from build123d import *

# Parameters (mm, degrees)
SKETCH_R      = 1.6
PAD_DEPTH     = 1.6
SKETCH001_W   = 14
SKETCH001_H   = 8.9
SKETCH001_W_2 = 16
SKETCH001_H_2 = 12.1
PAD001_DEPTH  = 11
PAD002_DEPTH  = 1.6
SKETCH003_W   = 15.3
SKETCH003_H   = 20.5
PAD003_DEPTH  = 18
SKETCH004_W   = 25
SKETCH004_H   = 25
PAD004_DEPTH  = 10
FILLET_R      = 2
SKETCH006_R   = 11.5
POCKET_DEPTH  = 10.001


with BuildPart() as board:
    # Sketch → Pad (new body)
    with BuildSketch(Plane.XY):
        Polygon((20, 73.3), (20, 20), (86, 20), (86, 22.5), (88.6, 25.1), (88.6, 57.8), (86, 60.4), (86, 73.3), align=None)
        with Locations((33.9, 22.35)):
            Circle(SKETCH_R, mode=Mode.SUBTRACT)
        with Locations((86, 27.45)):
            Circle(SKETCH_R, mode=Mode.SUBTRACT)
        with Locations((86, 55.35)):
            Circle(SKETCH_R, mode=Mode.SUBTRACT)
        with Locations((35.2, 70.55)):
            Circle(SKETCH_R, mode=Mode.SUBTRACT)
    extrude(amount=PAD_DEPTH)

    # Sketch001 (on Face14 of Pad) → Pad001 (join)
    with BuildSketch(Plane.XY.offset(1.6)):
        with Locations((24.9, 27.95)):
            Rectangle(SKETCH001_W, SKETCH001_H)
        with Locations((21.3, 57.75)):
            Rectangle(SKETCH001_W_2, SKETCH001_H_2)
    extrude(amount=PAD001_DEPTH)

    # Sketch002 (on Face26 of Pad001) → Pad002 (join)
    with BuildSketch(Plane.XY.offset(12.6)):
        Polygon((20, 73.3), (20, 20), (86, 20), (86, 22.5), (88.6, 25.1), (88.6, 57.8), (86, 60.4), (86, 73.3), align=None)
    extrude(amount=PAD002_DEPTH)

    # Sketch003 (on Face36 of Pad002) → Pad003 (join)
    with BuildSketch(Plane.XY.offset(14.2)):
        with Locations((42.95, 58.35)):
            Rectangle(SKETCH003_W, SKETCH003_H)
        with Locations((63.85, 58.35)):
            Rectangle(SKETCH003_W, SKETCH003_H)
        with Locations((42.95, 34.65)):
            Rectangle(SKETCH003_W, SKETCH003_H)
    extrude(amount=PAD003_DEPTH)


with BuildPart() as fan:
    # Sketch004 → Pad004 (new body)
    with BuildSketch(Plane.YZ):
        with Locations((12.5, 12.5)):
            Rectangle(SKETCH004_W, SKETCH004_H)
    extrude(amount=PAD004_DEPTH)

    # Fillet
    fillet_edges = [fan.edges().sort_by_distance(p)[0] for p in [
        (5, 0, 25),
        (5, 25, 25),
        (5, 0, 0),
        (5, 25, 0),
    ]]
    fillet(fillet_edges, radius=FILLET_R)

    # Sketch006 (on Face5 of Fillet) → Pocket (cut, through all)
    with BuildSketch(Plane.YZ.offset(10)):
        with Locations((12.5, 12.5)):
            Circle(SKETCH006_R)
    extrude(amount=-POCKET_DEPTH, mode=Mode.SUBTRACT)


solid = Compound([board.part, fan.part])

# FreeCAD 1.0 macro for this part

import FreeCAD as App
import Part
import Sketcher

V = App.Vector
Q = App.Units.Quantity


def edges_at(feature, points):
    """Names of the edges that pass closest to the given points."""
    edges = feature.Shape.Edges
    near = lambda p: min(range(len(edges)), key=lambda i: edges[i].distToShape(Part.Vertex(*p))[0])
    return sorted({f"Edge{near(p) + 1}" for p in points})

doc = App.newDocument("Part")
params = doc.addObject("Spreadsheet::Sheet", "Params")
for row, (alias, value) in enumerate([
    ("sketch1_diameter", "3.2 mm"),
    ("sketch1_width", "66 mm"),
    ("sketch1_height", "53.3 mm"),
    ("sketch1_height2", "2.5 mm"),
    ("sketch1_height3", "32.7 mm"),
    ("pad1_length", "1.6 mm"),
    ("sketch2_width", "14 mm"),
    ("sketch2_width2", "16 mm"),
    ("sketch2_height", "8.9 mm"),
    ("sketch2_height2", "12.1 mm"),
    ("pad2_length", "11 mm"),
    ("sketch3_width", "66 mm"),
    ("sketch3_height", "53.3 mm"),
    ("sketch3_height2", "2.5 mm"),
    ("sketch3_height3", "32.7 mm"),
    ("sketch3_height4", "12.9 mm"),
    ("pad3_length", "1.6 mm"),
    ("sketch4_width", "15.3 mm"),
    ("sketch4_height", "20.5 mm"),
    ("pad4_length", "18 mm"),
    ("sketch5_width", "25 mm"),
    ("pad5_length", "10 mm"),
    ("fillet_radius", "2 mm"),
    ("sketch6_diameter", "23 mm"),
], start=1):
    params.set(f"A{row}", alias)
    params.set(f"B{row}", "=" + value)
    params.setAlias(f"B{row}", alias)

body = doc.addObject("PartDesign::Body", "Body")

# Sketch on XY plane
sketch1 = body.newObject("Sketcher::SketchObject", "Sketch")
sketch1.AttachmentSupport = (doc.getObject("XY_Plane"), [""])
sketch1.MapMode = "FlatFace"
sketch1.addGeometry([
    Part.LineSegment(V(20, 73.3, 0), V(20, 20, 0)),  # 0
    Part.LineSegment(V(20, 20, 0), V(86, 20, 0)),  # 1
    Part.LineSegment(V(86, 20, 0), V(86, 22.5, 0)),  # 2
    Part.LineSegment(V(86, 22.5, 0), V(88.6, 25.1, 0)),  # 3
    Part.LineSegment(V(88.6, 25.1, 0), V(88.6, 57.8, 0)),  # 4
    Part.LineSegment(V(88.6, 57.8, 0), V(86, 60.4, 0)),  # 5
    Part.LineSegment(V(86, 60.4, 0), V(86, 73.3, 0)),  # 6
    Part.LineSegment(V(86, 73.3, 0), V(20, 73.3, 0)),  # 7
    Part.Circle(V(33.9, 22.4, 0), V(0, 0, 1), 1.6),  # 8
    Part.Circle(V(86, 27.4, 0), V(0, 0, 1), 1.6),  # 9
    Part.Circle(V(35.2, 70.5, 0), V(0, 0, 1), 1.6),  # 10
    Part.Circle(V(86, 55.4, 0), V(0, 0, 1), 1.6),  # 11
], False)
sketch1.addConstraint([
    Sketcher.Constraint("Coincident", 0, 2, 1, 1),
    Sketcher.Constraint("Coincident", 1, 2, 2, 1),
    Sketcher.Constraint("Coincident", 2, 2, 3, 1),
    Sketcher.Constraint("Coincident", 3, 2, 4, 1),
    Sketcher.Constraint("Coincident", 4, 2, 5, 1),
    Sketcher.Constraint("Coincident", 5, 2, 6, 1),
    Sketcher.Constraint("Coincident", 6, 2, 7, 1),
    Sketcher.Constraint("Coincident", 7, 2, 0, 1),
    Sketcher.Constraint("Vertical", 0),
    Sketcher.Constraint("Horizontal", 1),
    Sketcher.Constraint("Vertical", 2),
    Sketcher.Constraint("Vertical", 4),
    Sketcher.Constraint("Vertical", 6),
    Sketcher.Constraint("Horizontal", 7),
    Sketcher.Constraint("Equal", 8, 9),
    Sketcher.Constraint("Equal", 9, 10),
    Sketcher.Constraint("Equal", 10, 11),
    Sketcher.Constraint("Perpendicular", 3, 5),
    Sketcher.Constraint("Vertical", 9, 3, 11, 3),
    Sketcher.Constraint("Vertical", 11, 3, 1, 2),
    Sketcher.Constraint("Vertical", 2, 2, 5, 2),
    Sketcher.Constraint("Equal", 3, 5),
    Sketcher.Constraint("Diameter", 8, Q("3.2 mm")),
    Sketcher.Constraint("DistanceX", 1, 1, 1, 2, Q("66 mm")),
    Sketcher.Constraint("DistanceY", 0, 2, 0, 1, Q("53.3 mm")),
    Sketcher.Constraint("DistanceY", 2, 1, 2, 2, Q("2.5 mm")),
    Sketcher.Constraint("DistanceY", 4, 1, 4, 2, Q("32.7 mm")),
    Sketcher.Constraint("DistanceY", 6, 1, 6, 2, Q("12.9 mm")),
    Sketcher.Constraint("DistanceX", -1, 1, 9, 3, Q("86 mm")),
    Sketcher.Constraint("DistanceY", -1, 1, 0, 2, Q("20 mm")),
    Sketcher.Constraint("DistanceY", 8, 3, 11, 3, Q("33 mm")),
    Sketcher.Constraint("DistanceX", -1, 1, 8, 3, Q("33.9 mm")),
    Sketcher.Constraint("DistanceX", -1, 1, 10, 3, Q("35.2 mm")),
    Sketcher.Constraint("DistanceY", 8, 3, 9, 3, Q("5.1 mm")),
    Sketcher.Constraint("DistanceY", 8, 3, 10, 3, Q("48.2 mm")),
    Sketcher.Constraint("DistanceY", -1, 1, 8, 3, Q("22.35 mm")),
])
sketch1.setExpression("Constraints[22]", "Params.sketch1_diameter")
sketch1.setExpression("Constraints[23]", "Params.sketch1_width")
sketch1.setExpression("Constraints[24]", "Params.sketch1_height")
sketch1.setExpression("Constraints[25]", "Params.sketch1_height2")
sketch1.setExpression("Constraints[26]", "Params.sketch1_height3")
pad1 = body.newObject("PartDesign::Pad", "Pad")
pad1.Profile = sketch1
pad1.setExpression("Length", "Params.pad1_length")

# Sketch on XY plane
sketch2 = body.newObject("Sketcher::SketchObject", "Sketch001")
sketch2.AttachmentSupport = (doc.getObject("XY_Plane"), [""])
sketch2.MapMode = "FlatFace"
sketch2.AttachmentOffset = App.Placement(V(0, 0, 1.6), App.Rotation())
sketch2.addGeometry([
    Part.LineSegment(V(18, 32, 0), V(18, 24, 0)),  # 0
    Part.LineSegment(V(18, 24, 0), V(32, 24, 0)),  # 1
    Part.LineSegment(V(32, 24, 0), V(32, 32, 0)),  # 2
    Part.LineSegment(V(32, 32, 0), V(18, 32, 0)),  # 3
    Part.LineSegment(V(13, 64, 0), V(13, 52, 0)),  # 4
    Part.LineSegment(V(13, 52, 0), V(29, 52, 0)),  # 5
    Part.LineSegment(V(29, 52, 0), V(29, 64, 0)),  # 6
    Part.LineSegment(V(29, 64, 0), V(13, 64, 0)),  # 7
], False)
sketch2.addConstraint([
    Sketcher.Constraint("Coincident", 0, 2, 1, 1),
    Sketcher.Constraint("Coincident", 1, 2, 2, 1),
    Sketcher.Constraint("Coincident", 2, 2, 3, 1),
    Sketcher.Constraint("Coincident", 3, 2, 0, 1),
    Sketcher.Constraint("Coincident", 4, 2, 5, 1),
    Sketcher.Constraint("Coincident", 5, 2, 6, 1),
    Sketcher.Constraint("Coincident", 6, 2, 7, 1),
    Sketcher.Constraint("Coincident", 7, 2, 4, 1),
    Sketcher.Constraint("Vertical", 0),
    Sketcher.Constraint("Horizontal", 1),
    Sketcher.Constraint("Vertical", 2),
    Sketcher.Constraint("Horizontal", 3),
    Sketcher.Constraint("Vertical", 4),
    Sketcher.Constraint("Horizontal", 5),
    Sketcher.Constraint("Vertical", 6),
    Sketcher.Constraint("Horizontal", 7),
    Sketcher.Constraint("DistanceX", 1, 1, 1, 2, Q("14 mm")),
    Sketcher.Constraint("DistanceX", 5, 1, 5, 2, Q("16 mm")),
    Sketcher.Constraint("DistanceY", 0, 2, 0, 1, Q("8.9 mm")),
    Sketcher.Constraint("DistanceY", 4, 2, 4, 1, Q("12.1 mm")),
    Sketcher.Constraint("DistanceX", -1, 1, 0, 2, Q("17.9 mm")),
    Sketcher.Constraint("DistanceY", -1, 1, 0, 2, Q("23.5 mm")),
    Sketcher.Constraint("DistanceX", -1, 1, 4, 2, Q("13.3 mm")),
    Sketcher.Constraint("DistanceY", -1, 1, 4, 2, Q("51.7 mm")),
])
sketch2.setExpression("Constraints[16]", "Params.sketch2_width")
sketch2.setExpression("Constraints[17]", "Params.sketch2_width2")
sketch2.setExpression("Constraints[18]", "Params.sketch2_height")
sketch2.setExpression("Constraints[19]", "Params.sketch2_height2")
pad2 = body.newObject("PartDesign::Pad", "Pad001")
pad2.Profile = sketch2
pad2.setExpression("Length", "Params.pad2_length")

# Sketch on XY plane
sketch3 = body.newObject("Sketcher::SketchObject", "Sketch002")
sketch3.AttachmentSupport = (doc.getObject("XY_Plane"), [""])
sketch3.MapMode = "FlatFace"
sketch3.AttachmentOffset = App.Placement(V(0, 0, 12.6), App.Rotation())
sketch3.addGeometry([
    Part.LineSegment(V(20, 73.3, 0), V(20, 20, 0)),  # 0
    Part.LineSegment(V(20, 20, 0), V(86, 20, 0)),  # 1
    Part.LineSegment(V(86, 20, 0), V(86, 22.5, 0)),  # 2
    Part.LineSegment(V(86, 22.5, 0), V(88.6, 25.1, 0)),  # 3
    Part.LineSegment(V(88.6, 25.1, 0), V(88.6, 57.8, 0)),  # 4
    Part.LineSegment(V(88.6, 57.8, 0), V(86, 60.4, 0)),  # 5
    Part.LineSegment(V(86, 60.4, 0), V(86, 73.3, 0)),  # 6
    Part.LineSegment(V(86, 73.3, 0), V(20, 73.3, 0)),  # 7
], False)
sketch3.addConstraint([
    Sketcher.Constraint("Coincident", 0, 2, 1, 1),
    Sketcher.Constraint("Coincident", 1, 2, 2, 1),
    Sketcher.Constraint("Coincident", 2, 2, 3, 1),
    Sketcher.Constraint("Coincident", 3, 2, 4, 1),
    Sketcher.Constraint("Coincident", 4, 2, 5, 1),
    Sketcher.Constraint("Coincident", 5, 2, 6, 1),
    Sketcher.Constraint("Coincident", 6, 2, 7, 1),
    Sketcher.Constraint("Coincident", 7, 2, 0, 1),
    Sketcher.Constraint("Vertical", 0),
    Sketcher.Constraint("Horizontal", 1),
    Sketcher.Constraint("Vertical", 2),
    Sketcher.Constraint("Vertical", 4),
    Sketcher.Constraint("Vertical", 6),
    Sketcher.Constraint("Horizontal", 7),
    Sketcher.Constraint("Perpendicular", 3, 5),
    Sketcher.Constraint("Vertical", 2, 2, 5, 2),
    Sketcher.Constraint("Equal", 3, 5),
    Sketcher.Constraint("DistanceX", 1, 1, 1, 2, Q("66 mm")),
    Sketcher.Constraint("DistanceY", 0, 2, 0, 1, Q("53.3 mm")),
    Sketcher.Constraint("DistanceY", 2, 1, 2, 2, Q("2.5 mm")),
    Sketcher.Constraint("DistanceY", 4, 1, 4, 2, Q("32.7 mm")),
    Sketcher.Constraint("DistanceY", 6, 1, 6, 2, Q("12.9 mm")),
    Sketcher.Constraint("DistanceX", -1, 1, 0, 2, Q("20 mm")),
    Sketcher.Constraint("DistanceY", -1, 1, 0, 2, Q("20 mm")),
])
sketch3.setExpression("Constraints[17]", "Params.sketch3_width")
sketch3.setExpression("Constraints[18]", "Params.sketch3_height")
sketch3.setExpression("Constraints[19]", "Params.sketch3_height2")
sketch3.setExpression("Constraints[20]", "Params.sketch3_height3")
sketch3.setExpression("Constraints[21]", "Params.sketch3_height4")
pad3 = body.newObject("PartDesign::Pad", "Pad002")
pad3.Profile = sketch3
pad3.setExpression("Length", "Params.pad3_length")

# Sketch on XY plane
sketch4 = body.newObject("Sketcher::SketchObject", "Sketch003")
sketch4.AttachmentSupport = (doc.getObject("XY_Plane"), [""])
sketch4.MapMode = "FlatFace"
sketch4.AttachmentOffset = App.Placement(V(0, 0, 14.2), App.Rotation())
sketch4.addGeometry([
    Part.LineSegment(V(35, 69, 0), V(35, 48, 0)),  # 0
    Part.LineSegment(V(35, 48, 0), V(51, 48, 0)),  # 1
    Part.LineSegment(V(51, 48, 0), V(51, 69, 0)),  # 2
    Part.LineSegment(V(51, 69, 0), V(35, 69, 0)),  # 3
    Part.LineSegment(V(56, 69, 0), V(56, 48, 0)),  # 4
    Part.LineSegment(V(56, 48, 0), V(72, 48, 0)),  # 5
    Part.LineSegment(V(72, 48, 0), V(72, 69, 0)),  # 6
    Part.LineSegment(V(72, 69, 0), V(56, 69, 0)),  # 7
    Part.LineSegment(V(35, 45, 0), V(35, 24, 0)),  # 8
    Part.LineSegment(V(35, 24, 0), V(51, 24, 0)),  # 9
    Part.LineSegment(V(51, 24, 0), V(51, 45, 0)),  # 10
    Part.LineSegment(V(51, 45, 0), V(35, 45, 0)),  # 11
], False)
sketch4.addConstraint([
    Sketcher.Constraint("Coincident", 0, 2, 1, 1),
    Sketcher.Constraint("Coincident", 1, 2, 2, 1),
    Sketcher.Constraint("Coincident", 2, 2, 3, 1),
    Sketcher.Constraint("Coincident", 3, 2, 0, 1),
    Sketcher.Constraint("Coincident", 4, 2, 5, 1),
    Sketcher.Constraint("Coincident", 5, 2, 6, 1),
    Sketcher.Constraint("Coincident", 6, 2, 7, 1),
    Sketcher.Constraint("Coincident", 7, 2, 4, 1),
    Sketcher.Constraint("Coincident", 8, 2, 9, 1),
    Sketcher.Constraint("Coincident", 9, 2, 10, 1),
    Sketcher.Constraint("Coincident", 10, 2, 11, 1),
    Sketcher.Constraint("Coincident", 11, 2, 8, 1),
    Sketcher.Constraint("Vertical", 0),
    Sketcher.Constraint("Horizontal", 1),
    Sketcher.Constraint("Vertical", 2),
    Sketcher.Constraint("Horizontal", 3),
    Sketcher.Constraint("Vertical", 4),
    Sketcher.Constraint("Horizontal", 5),
    Sketcher.Constraint("Vertical", 6),
    Sketcher.Constraint("Horizontal", 7),
    Sketcher.Constraint("Vertical", 8),
    Sketcher.Constraint("Horizontal", 9),
    Sketcher.Constraint("Vertical", 10),
    Sketcher.Constraint("Horizontal", 11),
    Sketcher.Constraint("Horizontal", 1, 2, 4, 2),
    Sketcher.Constraint("Horizontal", 3, 2, 6, 2),
    Sketcher.Constraint("Vertical", 3, 2, 8, 2),
    Sketcher.Constraint("Vertical", 2, 2, 9, 2),
    Sketcher.Constraint("Equal", 3, 5),
    Sketcher.Constraint("Equal", 6, 8),
    Sketcher.Constraint("DistanceX", 1, 1, 1, 2, Q("15.3 mm")),
    Sketcher.Constraint("DistanceY", 0, 2, 0, 1, Q("20.5 mm")),
    Sketcher.Constraint("DistanceX", -1, 1, 0, 2, Q("35.3 mm")),
    Sketcher.Constraint("DistanceY", -1, 1, 0, 2, Q("48.1 mm")),
    Sketcher.Constraint("DistanceX", -1, 1, 4, 2, Q("56.2 mm")),
    Sketcher.Constraint("DistanceY", -1, 1, 8, 2, Q("24.4 mm")),
])
sketch4.setExpression("Constraints[30]", "Params.sketch4_width")
sketch4.setExpression("Constraints[31]", "Params.sketch4_height")
pad4 = body.newObject("PartDesign::Pad", "Pad003")
pad4.Profile = sketch4
pad4.setExpression("Length", "Params.pad4_length")
body2 = doc.addObject("PartDesign::Body", "Body001")

# Sketch on YZ plane
sketch5 = body2.newObject("Sketcher::SketchObject", "Sketch004")
sketch5.AttachmentSupport = (doc.getObject("YZ_Plane001"), [""])
sketch5.MapMode = "FlatFace"
sketch5.addGeometry([
    Part.LineSegment(V(0, 25, 0), V(0, 0, 0)),
    Part.LineSegment(V(0, 0, 0), V(25, 0, 0)),
    Part.LineSegment(V(25, 0, 0), V(25, 25, 0)),
    Part.LineSegment(V(25, 25, 0), V(0, 25, 0)),
], False)
sketch5.addConstraint([
    Sketcher.Constraint("Coincident", 0, 2, 1, 1),
    Sketcher.Constraint("Coincident", 1, 2, 2, 1),
    Sketcher.Constraint("Coincident", 2, 2, 3, 1),
    Sketcher.Constraint("Coincident", 3, 2, 0, 1),
    Sketcher.Constraint("Vertical", 0),
    Sketcher.Constraint("Horizontal", 1),
    Sketcher.Constraint("Vertical", 2),
    Sketcher.Constraint("Horizontal", 3),
    Sketcher.Constraint("Coincident", 0, 2, -1, 1),
    Sketcher.Constraint("Equal", 3, 0),
    Sketcher.Constraint("DistanceX", 1, 1, 1, 2, Q("25 mm")),
])
sketch5.setExpression("Constraints[10]", "Params.sketch5_width")
pad5 = body2.newObject("PartDesign::Pad", "Pad004")
pad5.Profile = sketch5
pad5.setExpression("Length", "Params.pad5_length")
doc.recompute()

fillet = body2.newObject("PartDesign::Fillet", "Fillet")
fillet.Base = (pad5, edges_at(pad5, [
    (5, 0, 25),
    (5, 25, 25),
    (5, 0, 0),
    (5, 25, 0),
]))
fillet.setExpression("Radius", "Params.fillet_radius")

# Sketch on YZ plane
sketch6 = body2.newObject("Sketcher::SketchObject", "Sketch005")
sketch6.AttachmentSupport = (doc.getObject("YZ_Plane001"), [""])
sketch6.MapMode = "FlatFace"
sketch6.AttachmentOffset = App.Placement(V(0, 0, 10), App.Rotation())
sketch6.addGeometry(Part.Circle(V(12, 12, 0), V(0, 0, 1), 12), False)
sketch6.addConstraint([
    Sketcher.Constraint("Diameter", 0, Q("23 mm")),
    Sketcher.Constraint("DistanceX", -1, 1, 0, 3, Q("12.5 mm")),
    Sketcher.Constraint("DistanceY", -1, 1, 0, 3, Q("12.5 mm")),
])
sketch6.setExpression("Constraints[0]", "Params.sketch6_diameter")
pocket1 = body2.newObject("PartDesign::Pocket", "Pocket")
pocket1.Profile = sketch6
pocket1.Type = "ThroughAll"

doc.recompute()
